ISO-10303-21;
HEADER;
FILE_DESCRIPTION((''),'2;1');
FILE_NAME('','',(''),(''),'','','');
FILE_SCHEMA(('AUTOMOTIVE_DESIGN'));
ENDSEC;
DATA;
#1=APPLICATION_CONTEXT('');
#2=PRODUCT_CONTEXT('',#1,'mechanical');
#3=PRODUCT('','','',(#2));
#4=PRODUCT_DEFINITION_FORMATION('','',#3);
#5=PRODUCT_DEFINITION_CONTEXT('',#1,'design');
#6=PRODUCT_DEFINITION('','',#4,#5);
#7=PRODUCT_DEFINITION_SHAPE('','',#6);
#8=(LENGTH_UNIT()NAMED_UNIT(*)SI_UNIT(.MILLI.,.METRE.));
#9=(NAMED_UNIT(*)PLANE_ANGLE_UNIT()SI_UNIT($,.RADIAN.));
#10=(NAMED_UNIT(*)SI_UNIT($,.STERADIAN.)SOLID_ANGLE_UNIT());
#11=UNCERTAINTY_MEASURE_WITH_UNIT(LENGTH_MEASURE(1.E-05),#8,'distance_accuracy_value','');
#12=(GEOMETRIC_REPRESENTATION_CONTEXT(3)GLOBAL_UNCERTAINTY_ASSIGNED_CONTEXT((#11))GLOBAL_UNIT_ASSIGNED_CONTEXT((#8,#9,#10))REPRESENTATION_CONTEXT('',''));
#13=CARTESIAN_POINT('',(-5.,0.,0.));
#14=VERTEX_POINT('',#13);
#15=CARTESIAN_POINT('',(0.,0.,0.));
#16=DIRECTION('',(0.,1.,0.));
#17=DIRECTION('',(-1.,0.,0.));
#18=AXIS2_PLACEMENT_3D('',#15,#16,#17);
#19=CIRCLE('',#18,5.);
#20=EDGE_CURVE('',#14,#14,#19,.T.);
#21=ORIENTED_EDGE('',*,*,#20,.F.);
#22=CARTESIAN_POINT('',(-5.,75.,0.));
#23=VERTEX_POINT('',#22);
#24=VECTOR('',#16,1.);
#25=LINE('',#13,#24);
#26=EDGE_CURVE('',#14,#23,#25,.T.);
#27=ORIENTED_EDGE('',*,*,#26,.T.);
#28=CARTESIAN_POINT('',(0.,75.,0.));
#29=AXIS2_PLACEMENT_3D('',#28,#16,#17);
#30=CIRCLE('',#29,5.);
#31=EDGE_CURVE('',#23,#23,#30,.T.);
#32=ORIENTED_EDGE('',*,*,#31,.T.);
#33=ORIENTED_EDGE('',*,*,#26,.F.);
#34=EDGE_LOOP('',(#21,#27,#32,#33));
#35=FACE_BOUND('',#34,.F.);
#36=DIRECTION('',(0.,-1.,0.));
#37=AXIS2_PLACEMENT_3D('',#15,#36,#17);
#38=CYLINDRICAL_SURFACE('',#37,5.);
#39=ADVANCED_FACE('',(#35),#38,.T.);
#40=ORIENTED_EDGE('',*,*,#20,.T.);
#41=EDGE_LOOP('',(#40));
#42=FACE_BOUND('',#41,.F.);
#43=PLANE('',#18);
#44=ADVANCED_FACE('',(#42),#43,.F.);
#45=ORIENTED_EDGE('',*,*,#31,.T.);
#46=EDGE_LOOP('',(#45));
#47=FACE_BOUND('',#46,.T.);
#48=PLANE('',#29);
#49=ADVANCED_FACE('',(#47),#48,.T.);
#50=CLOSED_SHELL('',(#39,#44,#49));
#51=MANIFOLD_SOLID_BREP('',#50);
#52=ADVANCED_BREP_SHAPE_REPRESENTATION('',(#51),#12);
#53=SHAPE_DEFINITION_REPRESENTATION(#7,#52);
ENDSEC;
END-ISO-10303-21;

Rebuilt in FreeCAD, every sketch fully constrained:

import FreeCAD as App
import Part
import Sketcher

doc = App.newDocument("Part")
body = doc.addObject("PartDesign::Body", "Body")

# Sketch on XZ plane
sketch1 = body.newObject("Sketcher::SketchObject", "Sketch")
sketch1.AttachmentSupport = (doc.getObject("XZ_Plane"), [""])
sketch1.MapMode = "FlatFace"
sketch1.addGeometry(Part.Circle(App.Vector(0, 0, 0), App.Vector(0, 0, 1), 5), False)
sketch1.addConstraint([
    Sketcher.Constraint("Coincident", 0, 3, -1, 1),
    Sketcher.Constraint("Diameter", 0, 10.0),
])
pad1 = body.newObject("PartDesign::Pad", "Pad")
pad1.Profile = sketch1
pad1.Length = 75
pad1.Reversed = True

doc.recompute()
